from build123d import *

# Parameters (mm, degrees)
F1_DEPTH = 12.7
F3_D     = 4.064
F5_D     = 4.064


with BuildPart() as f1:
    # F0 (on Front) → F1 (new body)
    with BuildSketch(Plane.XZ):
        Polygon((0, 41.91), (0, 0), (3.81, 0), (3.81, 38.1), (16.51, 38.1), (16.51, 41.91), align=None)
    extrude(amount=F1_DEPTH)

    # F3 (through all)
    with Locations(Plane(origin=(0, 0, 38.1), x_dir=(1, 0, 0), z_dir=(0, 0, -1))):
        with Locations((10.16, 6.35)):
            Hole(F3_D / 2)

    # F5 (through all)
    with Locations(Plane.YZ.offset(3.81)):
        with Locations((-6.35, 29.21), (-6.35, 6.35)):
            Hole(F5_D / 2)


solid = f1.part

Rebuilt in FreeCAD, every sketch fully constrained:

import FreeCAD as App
import Part
import Sketcher
from FreeCAD import Vector
Q = App.Units.Quantity

doc = App.newDocument("Part")
body = doc.addObject("PartDesign::Body", "Body")

# Sketch on XZ plane
sketch1 = doc.addObject("Sketcher::SketchObject", "Sketch")
body.addObject(sketch1)
sketch1.AttachmentSupport = (doc.XZ_Plane, [""])
sketch1.MapMode = "FlatFace"
sketch1.addGeometry([
    Part.LineSegment(Vector(0, 41.9, 0), Vector(0, 0, 0)),  # 0
    Part.LineSegment(Vector(0, 0, 0), Vector(3.8, 0, 0)),  # 1
    Part.LineSegment(Vector(3.8, 0, 0), Vector(3.8, 38.1, 0)),  # 2
    Part.LineSegment(Vector(3.8, 38.1, 0), Vector(16.5, 38.1, 0)),  # 3
    Part.LineSegment(Vector(16.5, 38.1, 0), Vector(16.5, 41.9, 0)),  # 4
    Part.LineSegment(Vector(16.5, 41.9, 0), Vector(0, 41.9, 0)),  # 5
], False)
sketch1.addConstraint([
    Sketcher.Constraint("Coincident", 0, 2, 1, 1),
    Sketcher.Constraint("Coincident", 1, 2, 2, 1),
    Sketcher.Constraint("Coincident", 2, 2, 3, 1),
    Sketcher.Constraint("Coincident", 3, 2, 4, 1),
    Sketcher.Constraint("Coincident", 4, 2, 5, 1),
    Sketcher.Constraint("Coincident", 5, 2, 0, 1),
    Sketcher.Constraint("Vertical", 0),
    Sketcher.Constraint("Horizontal", 1),
    Sketcher.Constraint("Vertical", 2),
    Sketcher.Constraint("Horizontal", 3),
    Sketcher.Constraint("Vertical", 4),
    Sketcher.Constraint("Horizontal", 5),
    Sketcher.Constraint("Coincident", 0, 2, -1, 1),
    Sketcher.Constraint("Equal", 1, 4),
    Sketcher.Constraint("DistanceX", 3, 1, 3, 2, Q("0.5 in")),
    Sketcher.Constraint("DistanceY", 2, 1, 2, 2, Q("1.5 in")),
    Sketcher.Constraint("DistanceX", 1, 1, 1, 2, Q("0.15 in")),
])
pad1 = doc.addObject("PartDesign::Pad", "Pad")
body.addObject(pad1)
pad1.Profile = sketch1
pad1.Length = Q("0.5 in")

# Sketch on XY plane
sketch2 = doc.addObject("Sketcher::SketchObject", "Sketch001")
body.addObject(sketch2)
sketch2.AttachmentSupport = (doc.XY_Plane, [""])
sketch2.MapMode = "FlatFace"
sketch2.AttachmentOffset = App.Placement(Vector(0, 0, 1.5 * 25.4), App.Rotation())
sketch2.addGeometry(Part.Circle(Vector(10.2, -6.3, 0), Vector(0, 0, 1), 2), False)
sketch2.addConstraint([
    Sketcher.Constraint("Diameter", 0, Q("0.16 in")),
    Sketcher.Constraint("DistanceX", -1, 1, 0, 3, Q("0.4 in")),
    Sketcher.Constraint("DistanceY", 0, 3, -1, 1, Q("0.25 in")),
])
doc.recompute()
hole = doc.addObject("PartDesign::Hole", "Hole")
body.addObject(hole)
hole.Profile = sketch2
hole.ThreadType = "None"
hole.Diameter = Q("0.16 in")
hole.DepthType = "ThroughAll"
hole.Reversed = True

# Sketch on YZ plane
sketch3 = doc.addObject("Sketcher::SketchObject", "Sketch002")
body.addObject(sketch3)
sketch3.AttachmentSupport = (doc.YZ_Plane, [""])
sketch3.MapMode = "FlatFace"
sketch3.AttachmentOffset = App.Placement(Vector(0, 0, 0.15 * 25.4), App.Rotation())
sketch3.addGeometry([
    Part.Circle(Vector(-6.3, 29.2, 0), Vector(0, 0, 1), 2),
    Part.Circle(Vector(-6.3, 6.3, 0), Vector(0, 0, 1), 2),
], False)
sketch3.addConstraint([
    Sketcher.Constraint("Equal", 0, 1),
    Sketcher.Constraint("Vertical", 0, 3, 1, 3),
    Sketcher.Constraint("Diameter", 0, Q("0.16 in")),
    Sketcher.Constraint("DistanceY", 1, 3, 0, 3, Q("0.9 in")),
    Sketcher.Constraint("DistanceX", 0, 3, -1, 1, Q("0.25 in")),
    Sketcher.Constraint("DistanceY", -1, 1, 0, 3, Q("1.15 in")),
])
doc.recompute()
hole2 = doc.addObject("PartDesign::Hole", "Hole001")
body.addObject(hole2)
hole2.Profile = sketch3
hole2.ThreadType = "None"
hole2.Diameter = Q("0.16 in")
hole2.DepthType = "ThroughAll"

doc.recompute()
